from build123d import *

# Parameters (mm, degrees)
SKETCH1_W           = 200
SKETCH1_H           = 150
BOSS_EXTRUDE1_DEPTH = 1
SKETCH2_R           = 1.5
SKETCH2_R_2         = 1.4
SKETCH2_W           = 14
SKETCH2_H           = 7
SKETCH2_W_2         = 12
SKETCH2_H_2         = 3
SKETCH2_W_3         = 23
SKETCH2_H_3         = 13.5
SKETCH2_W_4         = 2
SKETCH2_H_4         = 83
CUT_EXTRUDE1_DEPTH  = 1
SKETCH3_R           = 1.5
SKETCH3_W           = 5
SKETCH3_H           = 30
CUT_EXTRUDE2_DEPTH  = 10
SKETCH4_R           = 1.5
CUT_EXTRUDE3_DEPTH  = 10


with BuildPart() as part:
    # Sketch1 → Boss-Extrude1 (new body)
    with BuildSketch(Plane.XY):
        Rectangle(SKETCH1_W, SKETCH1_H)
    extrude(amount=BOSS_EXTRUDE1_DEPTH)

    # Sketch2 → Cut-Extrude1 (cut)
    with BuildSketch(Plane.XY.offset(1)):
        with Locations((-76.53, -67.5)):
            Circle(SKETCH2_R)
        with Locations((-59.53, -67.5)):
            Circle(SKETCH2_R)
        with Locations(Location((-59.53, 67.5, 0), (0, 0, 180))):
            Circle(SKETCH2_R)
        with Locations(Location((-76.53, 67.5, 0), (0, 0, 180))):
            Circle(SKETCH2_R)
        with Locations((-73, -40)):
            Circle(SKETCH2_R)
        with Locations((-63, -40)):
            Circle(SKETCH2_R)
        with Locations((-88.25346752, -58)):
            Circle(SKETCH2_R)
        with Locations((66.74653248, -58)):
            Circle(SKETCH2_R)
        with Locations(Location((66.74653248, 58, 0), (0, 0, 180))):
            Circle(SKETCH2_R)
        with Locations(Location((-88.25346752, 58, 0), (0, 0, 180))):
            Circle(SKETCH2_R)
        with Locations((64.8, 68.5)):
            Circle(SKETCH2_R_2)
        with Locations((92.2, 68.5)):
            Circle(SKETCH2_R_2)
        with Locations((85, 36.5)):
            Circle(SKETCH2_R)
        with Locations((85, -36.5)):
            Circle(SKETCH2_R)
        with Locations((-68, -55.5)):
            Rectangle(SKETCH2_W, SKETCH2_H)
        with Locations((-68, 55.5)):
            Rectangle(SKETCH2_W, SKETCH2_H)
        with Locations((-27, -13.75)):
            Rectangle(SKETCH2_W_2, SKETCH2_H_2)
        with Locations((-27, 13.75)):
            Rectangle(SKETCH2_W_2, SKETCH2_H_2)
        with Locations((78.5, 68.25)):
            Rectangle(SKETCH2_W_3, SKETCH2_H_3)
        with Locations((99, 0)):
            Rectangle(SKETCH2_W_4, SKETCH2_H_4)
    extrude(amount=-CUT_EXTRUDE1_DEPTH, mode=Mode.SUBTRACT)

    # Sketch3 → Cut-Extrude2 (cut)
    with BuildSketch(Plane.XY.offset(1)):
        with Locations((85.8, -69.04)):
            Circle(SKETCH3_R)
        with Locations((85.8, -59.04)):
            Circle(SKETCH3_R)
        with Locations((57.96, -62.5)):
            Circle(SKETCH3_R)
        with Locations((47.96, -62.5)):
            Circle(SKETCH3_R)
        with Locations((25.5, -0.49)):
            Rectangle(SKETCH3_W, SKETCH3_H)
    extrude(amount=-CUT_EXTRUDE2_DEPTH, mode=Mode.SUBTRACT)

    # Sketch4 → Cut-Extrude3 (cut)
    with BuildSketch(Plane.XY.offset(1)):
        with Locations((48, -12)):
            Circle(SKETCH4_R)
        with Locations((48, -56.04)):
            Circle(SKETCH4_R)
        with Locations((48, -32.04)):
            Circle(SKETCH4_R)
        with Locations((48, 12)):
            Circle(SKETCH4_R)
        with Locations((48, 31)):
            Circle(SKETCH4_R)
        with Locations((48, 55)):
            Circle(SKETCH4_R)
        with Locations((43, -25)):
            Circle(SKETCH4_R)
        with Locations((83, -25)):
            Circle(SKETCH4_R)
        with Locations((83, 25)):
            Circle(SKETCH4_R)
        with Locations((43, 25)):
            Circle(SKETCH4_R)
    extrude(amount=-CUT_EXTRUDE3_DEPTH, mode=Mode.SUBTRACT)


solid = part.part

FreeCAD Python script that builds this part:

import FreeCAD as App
import Part
import Sketcher

V = App.Vector

doc = App.newDocument("Part")
body = doc.addObject("PartDesign::Body", "Body")

# Sketch on XY plane
sketch1 = body.newObject("Sketcher::SketchObject", "Sketch")
sketch1.AttachmentSupport = (doc.getObject("XY_Plane"), [""])
sketch1.MapMode = "FlatFace"
sketch1.addGeometry([
    Part.LineSegment(V(-100, 75, 0), V(-100, -75, 0)),
    Part.LineSegment(V(-100, -75, 0), V(100, -75, 0)),
    Part.LineSegment(V(100, -75, 0), V(100, 75, 0)),
    Part.LineSegment(V(100, 75, 0), V(-100, 75, 0)),
], False)
sketch1.addConstraint([
    Sketcher.Constraint("Coincident", 0, 2, 1, 1),
    Sketcher.Constraint("Coincident", 1, 2, 2, 1),
    Sketcher.Constraint("Coincident", 2, 2, 3, 1),
    Sketcher.Constraint("Coincident", 3, 2, 0, 1),
    Sketcher.Constraint("Vertical", 0),
    Sketcher.Constraint("Horizontal", 1),
    Sketcher.Constraint("Vertical", 2),
    Sketcher.Constraint("Horizontal", 3),
    Sketcher.Constraint("Symmetric", 0, 2, 2, 2, -1, 1),
    Sketcher.Constraint("DistanceX", 1, 1, 1, 2, 200.0),
    Sketcher.Constraint("DistanceY", 0, 2, 0, 1, 150.0),
])
pad1 = body.newObject("PartDesign::Pad", "Pad")
pad1.Profile = sketch1
pad1.Length = 1

# Sketch on XY plane
sketch2 = body.newObject("Sketcher::SketchObject", "Sketch001")
sketch2.AttachmentSupport = (doc.getObject("XY_Plane"), [""])
sketch2.MapMode = "FlatFace"
sketch2.AttachmentOffset = App.Placement(V(0, 0, 1), App.Rotation())
sketch2.addGeometry([
    Part.Circle(V(-76.5, -67.5, 0), V(0, 0, 1), 1.5),  # 0
    Part.Circle(V(-59.5, -67.5, 0), V(0, 0, 1), 1.5),  # 1
    Part.Circle(V(-59.5, 67.5, 0), V(0, 0, 1), 1.5),  # 2
    Part.Circle(V(-76.5, 67.5, 0), V(0, 0, 1), 1.5),  # 3
    Part.Circle(V(-73, -40, 0), V(0, 0, 1), 1.5),  # 4
    Part.Circle(V(-63, -40, 0), V(0, 0, 1), 1.5),  # 5
    Part.Circle(V(-88.3, -58, 0), V(0, 0, 1), 1.5),  # 6
    Part.Circle(V(66.7, -58, 0), V(0, 0, 1), 1.5),  # 7
    Part.Circle(V(66.7, 58, 0), V(0, 0, 1), 1.5),  # 8
    Part.Circle(V(-88.3, 58, 0), V(0, 0, 1), 1.5),  # 9
    Part.Circle(V(64.8, 68.5, 0), V(0, 0, 1), 1.4),  # 10
    Part.Circle(V(92.2, 68.5, 0), V(0, 0, 1), 1.4),  # 11
    Part.Circle(V(85, 36.5, 0), V(0, 0, 1), 1.5),  # 12
    Part.Circle(V(85, -36.5, 0), V(0, 0, 1), 1.5),  # 13
    Part.LineSegment(V(-75, -52, 0), V(-75, -59, 0)),  # 14
    Part.LineSegment(V(-75, -59, 0), V(-61, -59, 0)),  # 15
    Part.LineSegment(V(-61, -59, 0), V(-61, -52, 0)),  # 16
    Part.LineSegment(V(-61, -52, 0), V(-75, -52, 0)),  # 17
    Part.LineSegment(V(-75, 59, 0), V(-75, 52, 0)),  # 18
    Part.LineSegment(V(-75, 52, 0), V(-61, 52, 0)),  # 19
    Part.LineSegment(V(-61, 52, 0), V(-61, 59, 0)),  # 20
    Part.LineSegment(V(-61, 59, 0), V(-75, 59, 0)),  # 21
    Part.LineSegment(V(-33, -12.2, 0), V(-33, -15.2, 0)),  # 22
    Part.LineSegment(V(-33, -15.2, 0), V(-21, -15.2, 0)),  # 23
    Part.LineSegment(V(-21, -15.2, 0), V(-21, -12.2, 0)),  # 24
    Part.LineSegment(V(-21, -12.2, 0), V(-33, -12.2, 0)),  # 25
    Part.LineSegment(V(-33, 15.2, 0), V(-33, 12.2, 0)),  # 26
    Part.LineSegment(V(-33, 12.2, 0), V(-21, 12.2, 0)),  # 27
    Part.LineSegment(V(-21, 12.2, 0), V(-21, 15.2, 0)),  # 28
    Part.LineSegment(V(-21, 15.2, 0), V(-33, 15.2, 0)),  # 29
    Part.LineSegment(V(67, 75, 0), V(67, 61.5, 0)),  # 30
    Part.LineSegment(V(67, 61.5, 0), V(90, 61.5, 0)),  # 31
    Part.LineSegment(V(90, 61.5, 0), V(90, 75, 0)),  # 32
    Part.LineSegment(V(90, 75, 0), V(67, 75, 0)),  # 33
    Part.LineSegment(V(98, 41.5, 0), V(98, -41.5, 0)),  # 34
    Part.LineSegment(V(98, -41.5, 0), V(100, -41.5, 0)),  # 35
    Part.LineSegment(V(100, -41.5, 0), V(100, 41.5, 0)),  # 36
    Part.LineSegment(V(100, 41.5, 0), V(98, 41.5, 0)),  # 37
], False)
sketch2.addConstraint([
    Sketcher.Constraint("Coincident", 14, 2, 15, 1),
    Sketcher.Constraint("Coincident", 15, 2, 16, 1),
    Sketcher.Constraint("Coincident", 16, 2, 17, 1),
    Sketcher.Constraint("Coincident", 17, 2, 14, 1),
    Sketcher.Constraint("Coincident", 18, 2, 19, 1),
    Sketcher.Constraint("Coincident", 19, 2, 20, 1),
    Sketcher.Constraint("Coincident", 20, 2, 21, 1),
    Sketcher.Constraint("Coincident", 21, 2, 18, 1),
    Sketcher.Constraint("Coincident", 22, 2, 23, 1),
    Sketcher.Constraint("Coincident", 23, 2, 24, 1),
    Sketcher.Constraint("Coincident", 24, 2, 25, 1),
    Sketcher.Constraint("Coincident", 25, 2, 22, 1),
    Sketcher.Constraint("Coincident", 26, 2, 27, 1),
    Sketcher.Constraint("Coincident", 27, 2, 28, 1),
    Sketcher.Constraint("Coincident", 28, 2, 29, 1),
    Sketcher.Constraint("Coincident", 29, 2, 26, 1),
    Sketcher.Constraint("Coincident", 30, 2, 31, 1),
    Sketcher.Constraint("Coincident", 31, 2, 32, 1),
    Sketcher.Constraint("Coincident", 32, 2, 33, 1),
    Sketcher.Constraint("Coincident", 33, 2, 30, 1),
    Sketcher.Constraint("Coincident", 34, 2, 35, 1),
    Sketcher.Constraint("Coincident", 35, 2, 36, 1),
    Sketcher.Constraint("Coincident", 36, 2, 37, 1),
    Sketcher.Constraint("Coincident", 37, 2, 34, 1),
    Sketcher.Constraint("Vertical", 14),
    Sketcher.Constraint("Horizontal", 15),
    Sketcher.Constraint("Vertical", 16),
    Sketcher.Constraint("Horizontal", 17),
    Sketcher.Constraint("Vertical", 18),
    Sketcher.Constraint("Horizontal", 19),
    Sketcher.Constraint("Vertical", 20),
    Sketcher.Constraint("Horizontal", 21),
    Sketcher.Constraint("Vertical", 22),
    Sketcher.Constraint("Horizontal", 23),
    Sketcher.Constraint("Vertical", 24),
    Sketcher.Constraint("Horizontal", 25),
    Sketcher.Constraint("Vertical", 26),
    Sketcher.Constraint("Horizontal", 27),
    Sketcher.Constraint("Vertical", 28),
    Sketcher.Constraint("Horizontal", 29),
    Sketcher.Constraint("Vertical", 30),
    Sketcher.Constraint("Horizontal", 31),
    Sketcher.Constraint("Vertical", 32),
    Sketcher.Constraint("Horizontal", 33),
    Sketcher.Constraint("Vertical", 34),
    Sketcher.Constraint("Horizontal", 35),
    Sketcher.Constraint("Vertical", 36),
    Sketcher.Constraint("Horizontal", 37),
    Sketcher.Constraint("Equal", 0, 1),
    Sketcher.Constraint("Equal", 1, 2),
    Sketcher.Constraint("Equal", 2, 3),
    Sketcher.Constraint("Equal", 3, 4),
    Sketcher.Constraint("Equal", 4, 5),
    Sketcher.Constraint("Equal", 5, 6),
    Sketcher.Constraint("Equal", 6, 7),
    Sketcher.Constraint("Equal", 7, 8),
    Sketcher.Constraint("Equal", 8, 9),
    Sketcher.Constraint("Equal", 10, 11),
    Sketcher.Constraint("Equal", 9, 12),
    Sketcher.Constraint("Equal", 12, 13),
    Sketcher.Constraint("Symmetric", 1, 3, 2, 3, -1),
    Sketcher.Constraint("Symmetric", 0, 3, 3, 3, -1),
    Sketcher.Constraint("Symmetric", 7, 3, 8, 3, -1),
    Sketcher.Constraint("Symmetric", 6, 3, 9, 3, -1),
    Sketcher.Constraint("Symmetric", 12, 3, 13, 3, -1),
    Sketcher.Constraint("Symmetric", 17, 2, 18, 2, -1),
    Sketcher.Constraint("Symmetric", 15, 2, 20, 2, -1),
    Sketcher.Constraint("Symmetric", 25, 2, 26, 2, -1),
    Sketcher.Constraint("Symmetric", 23, 2, 28, 2, -1),
    Sketcher.Constraint("Horizontal", 0, 3, 1, 3),
    Sketcher.Constraint("Horizontal", 4, 3, 5, 3),
    Sketcher.Constraint("Horizontal", 6, 3, 7, 3),
    Sketcher.Constraint("Horizontal", 10, 3, 11, 3),
    Sketcher.Constraint("Diameter", 0, 3.0),
    Sketcher.Constraint("Diameter", 10, 2.8),
    Sketcher.Constraint("DistanceX", 15, 1, 15, 2, 14.0),
    Sketcher.Constraint("DistanceX", 23, 1, 23, 2, 12.0),
    Sketcher.Constraint("DistanceX", 31, 1, 31, 2, 23.0),
    Sketcher.Constraint("DistanceX", 35, 1, 35, 2, 2.0),
    Sketcher.Constraint("DistanceY", 14, 2, 14, 1, 7.0),
    Sketcher.Constraint("DistanceY", 22, 2, 22, 1, 3.0),
    Sketcher.Constraint("DistanceY", 34, 2, 34, 1, 83.0),
    Sketcher.Constraint("DistanceY", 30, 2, 30, 1, 13.5),
    Sketcher.Constraint("DistanceX", 4, 3, -1, 1, 73.0),
    Sketcher.Constraint("DistanceY", 4, 3, -1, 1, 40.0),
    Sketcher.Constraint("DistanceX", 5, 3, -1, 1, 63.0),
    Sketcher.Constraint("DistanceY", 6, 3, -1, 1, 58.0),
    Sketcher.Constraint("DistanceX", -1, 1, 12, 3, 85.0),
    Sketcher.Constraint("DistanceX", 14, 2, -1, 1, 75.0),
    Sketcher.Constraint("DistanceY", 14, 2, -1, 1, 59.0),
    Sketcher.Constraint("DistanceX", 22, 2, -1, 1, 33.0),
    Sketcher.Constraint("DistanceX", -1, 1, 30, 2, 67.0),
    Sketcher.Constraint("DistanceY", -1, 1, 32, 2, 75.0),
    Sketcher.Constraint("DistanceX", -1, 1, 34, 2, 98.0),
    Sketcher.Constraint("DistanceX", 0, 3, 1, 3, 17.0),
    Sketcher.Constraint("DistanceY", 1, 3, 2, 3, 135.0),
    Sketcher.Constraint("DistanceX", 6, 3, 7, 3, 155.0),
    Sketcher.Constraint("DistanceY", 2, 3, 10, 3, 1.0),
    Sketcher.Constraint("DistanceY", 12, 3, 11, 3, 32.0),
    Sketcher.Constraint("DistanceY", 34, 2, 13, 3, 5.0),
    Sketcher.Constraint("DistanceX", -1, 1, 10, 3, 64.8),
    Sketcher.Constraint("DistanceX", -1, 1, 11, 3, 92.2),
    Sketcher.Constraint("DistanceY", 25, 2, 26, 2, 24.5),
    Sketcher.Constraint("DistanceX", 0, 3, -1, 1, 76.53),
    Sketcher.Constraint("DistanceX", 6, 3, -1, 1, 88.253468),
])
pocket1 = body.newObject("PartDesign::Pocket", "Pocket")
pocket1.Profile = sketch2
pocket1.Length = 1

# Sketch on XY plane
sketch3 = body.newObject("Sketcher::SketchObject", "Sketch002")
sketch3.AttachmentSupport = (doc.getObject("XY_Plane"), [""])
sketch3.MapMode = "FlatFace"
sketch3.AttachmentOffset = App.Placement(V(0, 0, 1), App.Rotation())
sketch3.addGeometry([
    Part.Circle(V(85.8, -69, 0), V(0, 0, 1), 1.5),  # 0
    Part.Circle(V(85.8, -59, 0), V(0, 0, 1), 1.5),  # 1
    Part.Circle(V(58, -62.5, 0), V(0, 0, 1), 1.5),  # 2
    Part.Circle(V(48, -62.5, 0), V(0, 0, 1), 1.5),  # 3
    Part.LineSegment(V(23, 14.5, 0), V(23, -15.5, 0)),  # 4
    Part.LineSegment(V(23, -15.5, 0), V(28, -15.5, 0)),  # 5
    Part.LineSegment(V(28, -15.5, 0), V(28, 14.5, 0)),  # 6
    Part.LineSegment(V(28, 14.5, 0), V(23, 14.5, 0)),  # 7
], False)
sketch3.addConstraint([
    Sketcher.Constraint("Coincident", 4, 2, 5, 1),
    Sketcher.Constraint("Coincident", 5, 2, 6, 1),
    Sketcher.Constraint("Coincident", 6, 2, 7, 1),
    Sketcher.Constraint("Coincident", 7, 2, 4, 1),
    Sketcher.Constraint("Vertical", 4),
    Sketcher.Constraint("Horizontal", 5),
    Sketcher.Constraint("Vertical", 6),
    Sketcher.Constraint("Horizontal", 7),
    Sketcher.Constraint("Equal", 0, 1),
    Sketcher.Constraint("Equal", 1, 2),
    Sketcher.Constraint("Equal", 2, 3),
    Sketcher.Constraint("Horizontal", 2, 3, 3, 3),
    Sketcher.Constraint("Vertical", 0, 3, 1, 3),
    Sketcher.Constraint("Diameter", 0, 3.0),
    Sketcher.Constraint("DistanceX", 5, 1, 5, 2, 5.0),
    Sketcher.Constraint("DistanceY", 4, 2, 4, 1, 30.0),
    Sketcher.Constraint("DistanceX", -1, 1, 4, 2, 23.0),
    Sketcher.Constraint("DistanceY", 0, 3, 1, 3, 10.0),
    Sketcher.Constraint("DistanceX", 3, 3, 2, 3, 10.0),
    Sketcher.Constraint("DistanceX", -1, 1, 0, 3, 85.8),
    Sketcher.Constraint("DistanceY", 2, 3, -1, 1, 62.5),
    Sketcher.Constraint("DistanceY", 0, 3, -1, 1, 69.04),
    Sketcher.Constraint("DistanceX", -1, 1, 2, 3, 57.96),
    Sketcher.Constraint("DistanceY", 4, 2, -1, 1, 15.49),
])
pocket2 = body.newObject("PartDesign::Pocket", "Pocket001")
pocket2.Profile = sketch3
pocket2.Length = 10

# Sketch on XY plane
sketch4 = body.newObject("Sketcher::SketchObject", "Sketch003")
sketch4.AttachmentSupport = (doc.getObject("XY_Plane"), [""])
sketch4.MapMode = "FlatFace"
sketch4.AttachmentOffset = App.Placement(V(0, 0, 1), App.Rotation())
sketch4.addGeometry([
    Part.Circle(V(48, -12, 0), V(0, 0, 1), 1.5),  # 0
    Part.Circle(V(48, -56, 0), V(0, 0, 1), 1.5),  # 1
    Part.Circle(V(48, -32, 0), V(0, 0, 1), 1.5),  # 2
    Part.Circle(V(48, 12, 0), V(0, 0, 1), 1.5),  # 3
    Part.Circle(V(48, 31, 0), V(0, 0, 1), 1.5),  # 4
    Part.Circle(V(48, 55, 0), V(0, 0, 1), 1.5),  # 5
    Part.Circle(V(43, -25, 0), V(0, 0, 1), 1.5),  # 6
    Part.Circle(V(83, -25, 0), V(0, 0, 1), 1.5),  # 7
    Part.Circle(V(83, 25, 0), V(0, 0, 1), 1.5),  # 8
    Part.Circle(V(43, 25, 0), V(0, 0, 1), 1.5),  # 9
], False)
sketch4.addConstraint([
    Sketcher.Constraint("Equal", 0, 1),
    Sketcher.Constraint("Equal", 1, 2),
    Sketcher.Constraint("Equal", 2, 3),
    Sketcher.Constraint("Equal", 3, 4),
    Sketcher.Constraint("Equal", 4, 5),
    Sketcher.Constraint("Equal", 5, 6),
    Sketcher.Constraint("Equal", 6, 7),
    Sketcher.Constraint("Equal", 7, 8),
    Sketcher.Constraint("Equal", 8, 9),
    Sketcher.Constraint("Symmetric", 0, 3, 3, 3, -1),
    Sketcher.Constraint("Symmetric", 7, 3, 8, 3, -1),
    Sketcher.Constraint("Symmetric", 6, 3, 9, 3, -1),
    Sketcher.Constraint("Horizontal", 6, 3, 7, 3),
    Sketcher.Constraint("Vertical", 0, 3, 1, 3),
    Sketcher.Constraint("Vertical", 1, 3, 2, 3),
    Sketcher.Constraint("Vertical", 3, 3, 4, 3),
    Sketcher.Constraint("Vertical", 4, 3, 5, 3),
    Sketcher.Constraint("Diameter", 0, 3.0),
    Sketcher.Constraint("DistanceX", -1, 1, 0, 3, 48.0),
    Sketcher.Constraint("DistanceY", 0, 3, -1, 1, 12.0),
    Sketcher.Constraint("DistanceY", -1, 1, 4, 3, 31.0),
    Sketcher.Constraint("DistanceY", -1, 1, 5, 3, 55.0),
    Sketcher.Constraint("DistanceX", -1, 1, 6, 3, 43.0),
    Sketcher.Constraint("DistanceY", 6, 3, -1, 1, 25.0),
    Sketcher.Constraint("DistanceX", -1, 1, 7, 3, 83.0),
    Sketcher.Constraint("DistanceY", 1, 3, 2, 3, 24.0),
    Sketcher.Constraint("DistanceY", 1, 3, -1, 1, 56.04),
])
pocket3 = body.newObject("PartDesign::Pocket", "Pocket002")
pocket3.Profile = sketch4
pocket3.Length = 10

doc.recompute()
